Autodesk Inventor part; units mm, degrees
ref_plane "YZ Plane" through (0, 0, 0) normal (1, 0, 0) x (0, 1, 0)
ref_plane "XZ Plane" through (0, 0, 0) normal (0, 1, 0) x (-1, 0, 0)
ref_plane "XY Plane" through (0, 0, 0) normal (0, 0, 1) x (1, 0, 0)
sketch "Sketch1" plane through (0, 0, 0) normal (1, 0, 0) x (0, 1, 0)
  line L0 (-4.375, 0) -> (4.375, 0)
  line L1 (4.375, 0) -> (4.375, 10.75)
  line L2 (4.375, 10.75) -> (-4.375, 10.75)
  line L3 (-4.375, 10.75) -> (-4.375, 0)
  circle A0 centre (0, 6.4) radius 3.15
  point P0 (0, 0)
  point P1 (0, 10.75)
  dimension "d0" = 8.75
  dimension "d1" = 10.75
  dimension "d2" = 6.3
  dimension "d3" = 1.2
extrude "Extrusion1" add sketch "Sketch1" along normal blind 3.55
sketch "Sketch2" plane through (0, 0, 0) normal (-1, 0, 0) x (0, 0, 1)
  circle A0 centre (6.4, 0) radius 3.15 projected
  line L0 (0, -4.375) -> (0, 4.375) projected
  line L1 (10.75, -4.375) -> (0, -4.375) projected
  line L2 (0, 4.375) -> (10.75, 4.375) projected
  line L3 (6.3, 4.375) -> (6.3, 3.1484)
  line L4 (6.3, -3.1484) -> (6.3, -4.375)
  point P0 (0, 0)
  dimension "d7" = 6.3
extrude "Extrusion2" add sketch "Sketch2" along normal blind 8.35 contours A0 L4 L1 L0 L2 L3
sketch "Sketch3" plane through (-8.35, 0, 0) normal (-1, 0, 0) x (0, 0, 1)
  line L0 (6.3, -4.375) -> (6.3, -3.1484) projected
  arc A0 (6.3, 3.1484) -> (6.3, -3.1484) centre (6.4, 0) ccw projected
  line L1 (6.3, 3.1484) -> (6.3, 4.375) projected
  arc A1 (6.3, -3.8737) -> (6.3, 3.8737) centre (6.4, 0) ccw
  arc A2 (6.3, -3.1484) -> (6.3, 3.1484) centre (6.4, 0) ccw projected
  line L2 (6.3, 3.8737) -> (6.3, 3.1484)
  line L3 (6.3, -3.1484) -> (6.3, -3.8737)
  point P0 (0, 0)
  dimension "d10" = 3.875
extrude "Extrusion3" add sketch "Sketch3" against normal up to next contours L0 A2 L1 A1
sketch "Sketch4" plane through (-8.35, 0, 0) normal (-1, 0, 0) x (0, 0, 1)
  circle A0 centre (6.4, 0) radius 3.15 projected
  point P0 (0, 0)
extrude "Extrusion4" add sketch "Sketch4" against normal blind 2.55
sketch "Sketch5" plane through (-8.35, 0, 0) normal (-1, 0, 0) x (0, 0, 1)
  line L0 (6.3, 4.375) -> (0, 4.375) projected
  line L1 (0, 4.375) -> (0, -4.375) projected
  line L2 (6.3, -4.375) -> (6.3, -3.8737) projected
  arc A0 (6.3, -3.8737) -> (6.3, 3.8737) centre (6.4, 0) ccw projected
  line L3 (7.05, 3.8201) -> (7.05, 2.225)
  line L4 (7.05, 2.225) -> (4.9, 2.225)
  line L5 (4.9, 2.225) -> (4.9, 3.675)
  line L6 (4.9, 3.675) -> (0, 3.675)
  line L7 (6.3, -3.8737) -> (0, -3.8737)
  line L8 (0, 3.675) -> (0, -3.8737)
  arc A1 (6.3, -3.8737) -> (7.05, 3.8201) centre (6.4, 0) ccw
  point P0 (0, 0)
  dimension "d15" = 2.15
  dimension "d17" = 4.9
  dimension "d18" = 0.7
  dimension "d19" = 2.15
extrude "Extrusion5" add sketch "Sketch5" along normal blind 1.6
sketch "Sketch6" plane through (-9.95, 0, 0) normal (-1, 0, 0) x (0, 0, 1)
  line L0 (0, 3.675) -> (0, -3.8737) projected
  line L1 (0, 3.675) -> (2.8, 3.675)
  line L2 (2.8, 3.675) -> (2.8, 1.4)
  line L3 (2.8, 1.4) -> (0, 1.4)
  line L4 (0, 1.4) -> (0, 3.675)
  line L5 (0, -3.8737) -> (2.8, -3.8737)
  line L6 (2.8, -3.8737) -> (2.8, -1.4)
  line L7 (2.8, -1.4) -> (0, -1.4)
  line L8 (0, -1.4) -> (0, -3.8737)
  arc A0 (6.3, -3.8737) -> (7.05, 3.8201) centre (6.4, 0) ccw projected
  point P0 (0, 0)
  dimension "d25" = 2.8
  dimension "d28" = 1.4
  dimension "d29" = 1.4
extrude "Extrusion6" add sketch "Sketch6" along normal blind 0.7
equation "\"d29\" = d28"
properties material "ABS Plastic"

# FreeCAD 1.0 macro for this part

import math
import FreeCAD as App
import Part
import Sketcher
from FreeCAD import Vector
Q = App.Units.Quantity


def add_polygon(sketch, points):
    """Adds a closed chain of lines whose ends are joined by coincident constraints."""
    first, n = sketch.GeometryCount, len(points)
    for a, b in zip(points, points[1:] + points[:1]):
        sketch.addGeometry(Part.LineSegment(App.Vector(*a, 0), App.Vector(*b, 0)), False)
    for i in range(n):
        sketch.addConstraint(Sketcher.Constraint("Coincident", first + i, 2, first + (i + 1) % n, 1))

doc = App.newDocument("Part")
body = doc.addObject("PartDesign::Body", "Body")

sketch1 = body.newObject("Sketcher::SketchObject", "Sketch")
sketch1.AttachmentSupport = (doc.getObject("YZ_Plane"), [""])
sketch1.MapMode = "FlatFace"
add_polygon(sketch1, [(-4.4, 10.8), (-4.4, 0), (4.4, 0), (4.4, 10.8)])
sketch1.addGeometry(Part.Circle(Vector(0, 6.4, 0), Vector(0, 0, 1), 3.1), False)
sketch1.addConstraint([
    Sketcher.Constraint("Vertical", 0),
    Sketcher.Constraint("Horizontal", 1),
    Sketcher.Constraint("Vertical", 2),
    Sketcher.Constraint("Horizontal", 3),
    Sketcher.Constraint("Symmetric", 0, 2, 1, 2, -1, 1),
    Sketcher.Constraint("PointOnObject", 4, 3, -2),
    Sketcher.Constraint("Diameter", 4, Q("6.3 mm")),
    Sketcher.Constraint("DistanceX", 1, 1, 1, 2, Q("8.75 mm")),
    Sketcher.Constraint("DistanceY", 0, 2, 0, 1, Q("10.75 mm")),
    Sketcher.Constraint("DistanceY", -1, 1, 4, 3, Q("6.4 mm")),
])
pad1 = body.newObject("PartDesign::Pad", "Pad")
pad1.Profile = sketch1
pad1.Length = 3.55

sketch2 = body.newObject("Sketcher::SketchObject", "Sketch001")
sketch2.AttachmentSupport = (doc.getObject("YZ_Plane"), [""])
sketch2.MapMode = "FlatFace"
sketch2.addGeometry([
    Part.ArcOfCircle(Part.Circle(Vector(0, 6.4, 0), Vector(0, 0, 1), 3.1), math.radians(-178), math.radians(-2)),
    Part.LineSegment(Vector(3.1, 6.3, 0), Vector(4.4, 6.3, 0)),
    Part.LineSegment(Vector(4.4, 6.3, 0), Vector(4.4, 0, 0)),
    Part.LineSegment(Vector(4.4, 0, 0), Vector(-4.4, 0, 0)),
    Part.LineSegment(Vector(-4.4, 0, 0), Vector(-4.4, 6.3, 0)),
    Part.LineSegment(Vector(-4.4, 6.3, 0), Vector(-3.1, 6.3, 0)),
], False)
sketch2.addConstraint([
    Sketcher.Constraint("Coincident", 0, 2, 1, 1),
    Sketcher.Constraint("Coincident", 1, 2, 2, 1),
    Sketcher.Constraint("Coincident", 2, 2, 3, 1),
    Sketcher.Constraint("Coincident", 3, 2, 4, 1),
    Sketcher.Constraint("Coincident", 4, 2, 5, 1),
    Sketcher.Constraint("Coincident", 5, 2, 0, 1),
    Sketcher.Constraint("Horizontal", 1),
    Sketcher.Constraint("Vertical", 2),
    Sketcher.Constraint("Horizontal", 3),
    Sketcher.Constraint("Vertical", 4),
    Sketcher.Constraint("Horizontal", 5),
    Sketcher.Constraint("Symmetric", 2, 2, 3, 2, -1, 1),
    Sketcher.Constraint("Symmetric", 0, 2, 5, 2, -2),
    Sketcher.Constraint("Radius", 0, Q("3.15 mm")),
    Sketcher.Constraint("DistanceY", 2, 2, 2, 1, Q("6.3 mm")),
    Sketcher.Constraint("DistanceX", 3, 2, 3, 1, Q("8.75 mm")),
    Sketcher.Constraint("DistanceY", -1, 1, 0, 3, Q("6.4 mm")),
])
pad2 = body.newObject("PartDesign::Pad", "Pad001")
pad2.Profile = sketch2
pad2.Length = 8.35
pad2.Reversed = True

sketch3 = body.newObject("Sketcher::SketchObject", "Sketch002")
sketch3.AttachmentSupport = (doc.getObject("YZ_Plane"), [""])
sketch3.MapMode = "FlatFace"
sketch3.AttachmentOffset = App.Placement(Vector(0, 0, -8.35), App.Rotation())
sketch3.addGeometry([
    Part.LineSegment(Vector(-3.1, 6.3, 0), Vector(-3.9, 6.3, 0)),
    Part.ArcOfCircle(Part.Circle(Vector(0, 6.4, 0), Vector(0, 0, 1), 3.9), math.radians(-1), math.radians(181)),
    Part.LineSegment(Vector(3.9, 6.3, 0), Vector(3.1, 6.3, 0)),
    Part.ArcOfCircle(Part.Circle(Vector(0, 6.4, 0), Vector(0, 0, 1), 3.1), math.radians(-2), math.radians(182)),
], False)
sketch3.addConstraint([
    Sketcher.Constraint("Coincident", 0, 2, 1, 2),
    Sketcher.Constraint("Coincident", 1, 1, 2, 1),
    Sketcher.Constraint("Coincident", 2, 2, 3, 1),
    Sketcher.Constraint("Coincident", 3, 2, 0, 1),
    Sketcher.Constraint("Horizontal", 0),
    Sketcher.Constraint("Horizontal", 2),
    Sketcher.Constraint("Coincident", 3, 3, 1, 3),
    Sketcher.Constraint("Symmetric", 0, 2, 1, 1, -2),
    Sketcher.Constraint("Radius", 1, Q("3.875 mm")),
    Sketcher.Constraint("Radius", 3, Q("3.15 mm")),
    Sketcher.Constraint("DistanceY", -1, 1, 1, 3, Q("6.4 mm")),
    Sketcher.Constraint("DistanceY", -1, 1, 0, 2, Q("6.3 mm")),
])
pad3 = body.newObject("PartDesign::Pad", "Pad002")
pad3.Profile = sketch3
pad3.Length = 11.9

sketch4 = body.newObject("Sketcher::SketchObject", "Sketch003")
sketch4.AttachmentSupport = (doc.getObject("YZ_Plane"), [""])
sketch4.MapMode = "FlatFace"
sketch4.AttachmentOffset = App.Placement(Vector(0, 0, -8.35), App.Rotation())
sketch4.addGeometry(Part.Circle(Vector(0, 6.4, 0), Vector(0, 0, 1), 3.1), False)
sketch4.addConstraint([
    Sketcher.Constraint("PointOnObject", 0, 3, -2),
    Sketcher.Constraint("Diameter", 0, Q("6.3 mm")),
    Sketcher.Constraint("DistanceY", -1, 1, 0, 3, Q("6.4 mm")),
])
pad4 = body.newObject("PartDesign::Pad", "Pad003")
pad4.Profile = sketch4
pad4.Length = 2.55

sketch5 = body.newObject("Sketcher::SketchObject", "Sketch004")
sketch5.AttachmentSupport = (doc.getObject("YZ_Plane"), [""])
sketch5.MapMode = "FlatFace"
sketch5.AttachmentOffset = App.Placement(Vector(0, 0, -8.35), App.Rotation())
sketch5.addGeometry([
    Part.LineSegment(Vector(3.7, 4.9, 0), Vector(3.7, 0, 0)),
    Part.LineSegment(Vector(3.7, 0, 0), Vector(-3.9, 0, 0)),
    Part.LineSegment(Vector(-3.9, 0, 0), Vector(-3.9, 6.3, 0)),
    Part.ArcOfCircle(Part.Circle(Vector(0, 6.4, 0), Vector(0, 0, 1), 3.9), math.radians(10), math.radians(181)),
    Part.LineSegment(Vector(3.8, 7, 0), Vector(2.2, 7, 0)),
    Part.LineSegment(Vector(2.2, 7, 0), Vector(2.2, 4.9, 0)),
    Part.LineSegment(Vector(2.2, 4.9, 0), Vector(3.7, 4.9, 0)),
], False)
sketch5.addConstraint([
    Sketcher.Constraint("Coincident", 0, 2, 1, 1),
    Sketcher.Constraint("Coincident", 1, 2, 2, 1),
    Sketcher.Constraint("Coincident", 2, 2, 3, 2),
    Sketcher.Constraint("Coincident", 3, 1, 4, 1),
    Sketcher.Constraint("Coincident", 4, 2, 5, 1),
    Sketcher.Constraint("Coincident", 5, 2, 6, 1),
    Sketcher.Constraint("Coincident", 6, 2, 0, 1),
    Sketcher.Constraint("Vertical", 0),
    Sketcher.Constraint("Horizontal", 1),
    Sketcher.Constraint("Vertical", 2),
    Sketcher.Constraint("Horizontal", 4),
    Sketcher.Constraint("Vertical", 5),
    Sketcher.Constraint("Horizontal", 6),
    Sketcher.Constraint("PointOnObject", 3, 3, -2),
    Sketcher.Constraint("PointOnObject", 0, 2, -1),
    Sketcher.Constraint("DistanceY", 0, 2, 0, 1, Q("4.9 mm")),
    Sketcher.Constraint("DistanceY", 5, 2, 5, 1, Q("2.15 mm")),
    Sketcher.Constraint("DistanceY", 2, 1, 2, 2, Q("6.3 mm")),
    Sketcher.Constraint("Radius", 3, Q("3.875 mm")),
    Sketcher.Constraint("DistanceX", 6, 1, 6, 2, Q("1.45 mm")),
    Sketcher.Constraint("DistanceY", -1, 1, 3, 3, Q("6.4 mm")),
    Sketcher.Constraint("DistanceX", 4, 2, 4, 1, Q("1.595 mm")),
])
pad5 = body.newObject("PartDesign::Pad", "Pad004")
pad5.Profile = sketch5
pad5.Length = 1.6
pad5.Reversed = True

sketch6 = body.newObject("Sketcher::SketchObject", "Sketch005")
sketch6.AttachmentSupport = (doc.getObject("YZ_Plane"), [""])
sketch6.MapMode = "FlatFace"
sketch6.AttachmentOffset = App.Placement(Vector(0, 0, -9.95), App.Rotation())
add_polygon(sketch6, [(3.7, 2.8), (3.7, 0), (1.4, 0), (1.4, 2.8)])
add_polygon(sketch6, [(-1.4, 2.8), (-1.4, 0), (-3.9, 0), (-3.9, 2.8)])
sketch6.addConstraint([
    Sketcher.Constraint("Vertical", 0),
    Sketcher.Constraint("Horizontal", 1),
    Sketcher.Constraint("Vertical", 2),
    Sketcher.Constraint("Horizontal", 3),
    Sketcher.Constraint("Vertical", 4),
    Sketcher.Constraint("Horizontal", 5),
    Sketcher.Constraint("Vertical", 6),
    Sketcher.Constraint("Horizontal", 7),
    Sketcher.Constraint("Symmetric", 1, 2, 4, 2, -1, 1),
    Sketcher.Constraint("PointOnObject", 0, 2, -1),
    Sketcher.Constraint("Horizontal", 3, 2, 6, 2),
    Sketcher.Constraint("DistanceY", 0, 2, 0, 1, Q("2.8 mm")),
    Sketcher.Constraint("DistanceX", -1, 1, 1, 2, Q("1.4 mm")),
    Sketcher.Constraint("DistanceX", 1, 2, 1, 1, Q("2.275 mm")),
    Sketcher.Constraint("DistanceX", 5, 2, 5, 1, Q("2.4737 mm")),
])
pad6 = body.newObject("PartDesign::Pad", "Pad005")
pad6.Profile = sketch6
pad6.Length = 0.7
pad6.Reversed = True

doc.recompute()
